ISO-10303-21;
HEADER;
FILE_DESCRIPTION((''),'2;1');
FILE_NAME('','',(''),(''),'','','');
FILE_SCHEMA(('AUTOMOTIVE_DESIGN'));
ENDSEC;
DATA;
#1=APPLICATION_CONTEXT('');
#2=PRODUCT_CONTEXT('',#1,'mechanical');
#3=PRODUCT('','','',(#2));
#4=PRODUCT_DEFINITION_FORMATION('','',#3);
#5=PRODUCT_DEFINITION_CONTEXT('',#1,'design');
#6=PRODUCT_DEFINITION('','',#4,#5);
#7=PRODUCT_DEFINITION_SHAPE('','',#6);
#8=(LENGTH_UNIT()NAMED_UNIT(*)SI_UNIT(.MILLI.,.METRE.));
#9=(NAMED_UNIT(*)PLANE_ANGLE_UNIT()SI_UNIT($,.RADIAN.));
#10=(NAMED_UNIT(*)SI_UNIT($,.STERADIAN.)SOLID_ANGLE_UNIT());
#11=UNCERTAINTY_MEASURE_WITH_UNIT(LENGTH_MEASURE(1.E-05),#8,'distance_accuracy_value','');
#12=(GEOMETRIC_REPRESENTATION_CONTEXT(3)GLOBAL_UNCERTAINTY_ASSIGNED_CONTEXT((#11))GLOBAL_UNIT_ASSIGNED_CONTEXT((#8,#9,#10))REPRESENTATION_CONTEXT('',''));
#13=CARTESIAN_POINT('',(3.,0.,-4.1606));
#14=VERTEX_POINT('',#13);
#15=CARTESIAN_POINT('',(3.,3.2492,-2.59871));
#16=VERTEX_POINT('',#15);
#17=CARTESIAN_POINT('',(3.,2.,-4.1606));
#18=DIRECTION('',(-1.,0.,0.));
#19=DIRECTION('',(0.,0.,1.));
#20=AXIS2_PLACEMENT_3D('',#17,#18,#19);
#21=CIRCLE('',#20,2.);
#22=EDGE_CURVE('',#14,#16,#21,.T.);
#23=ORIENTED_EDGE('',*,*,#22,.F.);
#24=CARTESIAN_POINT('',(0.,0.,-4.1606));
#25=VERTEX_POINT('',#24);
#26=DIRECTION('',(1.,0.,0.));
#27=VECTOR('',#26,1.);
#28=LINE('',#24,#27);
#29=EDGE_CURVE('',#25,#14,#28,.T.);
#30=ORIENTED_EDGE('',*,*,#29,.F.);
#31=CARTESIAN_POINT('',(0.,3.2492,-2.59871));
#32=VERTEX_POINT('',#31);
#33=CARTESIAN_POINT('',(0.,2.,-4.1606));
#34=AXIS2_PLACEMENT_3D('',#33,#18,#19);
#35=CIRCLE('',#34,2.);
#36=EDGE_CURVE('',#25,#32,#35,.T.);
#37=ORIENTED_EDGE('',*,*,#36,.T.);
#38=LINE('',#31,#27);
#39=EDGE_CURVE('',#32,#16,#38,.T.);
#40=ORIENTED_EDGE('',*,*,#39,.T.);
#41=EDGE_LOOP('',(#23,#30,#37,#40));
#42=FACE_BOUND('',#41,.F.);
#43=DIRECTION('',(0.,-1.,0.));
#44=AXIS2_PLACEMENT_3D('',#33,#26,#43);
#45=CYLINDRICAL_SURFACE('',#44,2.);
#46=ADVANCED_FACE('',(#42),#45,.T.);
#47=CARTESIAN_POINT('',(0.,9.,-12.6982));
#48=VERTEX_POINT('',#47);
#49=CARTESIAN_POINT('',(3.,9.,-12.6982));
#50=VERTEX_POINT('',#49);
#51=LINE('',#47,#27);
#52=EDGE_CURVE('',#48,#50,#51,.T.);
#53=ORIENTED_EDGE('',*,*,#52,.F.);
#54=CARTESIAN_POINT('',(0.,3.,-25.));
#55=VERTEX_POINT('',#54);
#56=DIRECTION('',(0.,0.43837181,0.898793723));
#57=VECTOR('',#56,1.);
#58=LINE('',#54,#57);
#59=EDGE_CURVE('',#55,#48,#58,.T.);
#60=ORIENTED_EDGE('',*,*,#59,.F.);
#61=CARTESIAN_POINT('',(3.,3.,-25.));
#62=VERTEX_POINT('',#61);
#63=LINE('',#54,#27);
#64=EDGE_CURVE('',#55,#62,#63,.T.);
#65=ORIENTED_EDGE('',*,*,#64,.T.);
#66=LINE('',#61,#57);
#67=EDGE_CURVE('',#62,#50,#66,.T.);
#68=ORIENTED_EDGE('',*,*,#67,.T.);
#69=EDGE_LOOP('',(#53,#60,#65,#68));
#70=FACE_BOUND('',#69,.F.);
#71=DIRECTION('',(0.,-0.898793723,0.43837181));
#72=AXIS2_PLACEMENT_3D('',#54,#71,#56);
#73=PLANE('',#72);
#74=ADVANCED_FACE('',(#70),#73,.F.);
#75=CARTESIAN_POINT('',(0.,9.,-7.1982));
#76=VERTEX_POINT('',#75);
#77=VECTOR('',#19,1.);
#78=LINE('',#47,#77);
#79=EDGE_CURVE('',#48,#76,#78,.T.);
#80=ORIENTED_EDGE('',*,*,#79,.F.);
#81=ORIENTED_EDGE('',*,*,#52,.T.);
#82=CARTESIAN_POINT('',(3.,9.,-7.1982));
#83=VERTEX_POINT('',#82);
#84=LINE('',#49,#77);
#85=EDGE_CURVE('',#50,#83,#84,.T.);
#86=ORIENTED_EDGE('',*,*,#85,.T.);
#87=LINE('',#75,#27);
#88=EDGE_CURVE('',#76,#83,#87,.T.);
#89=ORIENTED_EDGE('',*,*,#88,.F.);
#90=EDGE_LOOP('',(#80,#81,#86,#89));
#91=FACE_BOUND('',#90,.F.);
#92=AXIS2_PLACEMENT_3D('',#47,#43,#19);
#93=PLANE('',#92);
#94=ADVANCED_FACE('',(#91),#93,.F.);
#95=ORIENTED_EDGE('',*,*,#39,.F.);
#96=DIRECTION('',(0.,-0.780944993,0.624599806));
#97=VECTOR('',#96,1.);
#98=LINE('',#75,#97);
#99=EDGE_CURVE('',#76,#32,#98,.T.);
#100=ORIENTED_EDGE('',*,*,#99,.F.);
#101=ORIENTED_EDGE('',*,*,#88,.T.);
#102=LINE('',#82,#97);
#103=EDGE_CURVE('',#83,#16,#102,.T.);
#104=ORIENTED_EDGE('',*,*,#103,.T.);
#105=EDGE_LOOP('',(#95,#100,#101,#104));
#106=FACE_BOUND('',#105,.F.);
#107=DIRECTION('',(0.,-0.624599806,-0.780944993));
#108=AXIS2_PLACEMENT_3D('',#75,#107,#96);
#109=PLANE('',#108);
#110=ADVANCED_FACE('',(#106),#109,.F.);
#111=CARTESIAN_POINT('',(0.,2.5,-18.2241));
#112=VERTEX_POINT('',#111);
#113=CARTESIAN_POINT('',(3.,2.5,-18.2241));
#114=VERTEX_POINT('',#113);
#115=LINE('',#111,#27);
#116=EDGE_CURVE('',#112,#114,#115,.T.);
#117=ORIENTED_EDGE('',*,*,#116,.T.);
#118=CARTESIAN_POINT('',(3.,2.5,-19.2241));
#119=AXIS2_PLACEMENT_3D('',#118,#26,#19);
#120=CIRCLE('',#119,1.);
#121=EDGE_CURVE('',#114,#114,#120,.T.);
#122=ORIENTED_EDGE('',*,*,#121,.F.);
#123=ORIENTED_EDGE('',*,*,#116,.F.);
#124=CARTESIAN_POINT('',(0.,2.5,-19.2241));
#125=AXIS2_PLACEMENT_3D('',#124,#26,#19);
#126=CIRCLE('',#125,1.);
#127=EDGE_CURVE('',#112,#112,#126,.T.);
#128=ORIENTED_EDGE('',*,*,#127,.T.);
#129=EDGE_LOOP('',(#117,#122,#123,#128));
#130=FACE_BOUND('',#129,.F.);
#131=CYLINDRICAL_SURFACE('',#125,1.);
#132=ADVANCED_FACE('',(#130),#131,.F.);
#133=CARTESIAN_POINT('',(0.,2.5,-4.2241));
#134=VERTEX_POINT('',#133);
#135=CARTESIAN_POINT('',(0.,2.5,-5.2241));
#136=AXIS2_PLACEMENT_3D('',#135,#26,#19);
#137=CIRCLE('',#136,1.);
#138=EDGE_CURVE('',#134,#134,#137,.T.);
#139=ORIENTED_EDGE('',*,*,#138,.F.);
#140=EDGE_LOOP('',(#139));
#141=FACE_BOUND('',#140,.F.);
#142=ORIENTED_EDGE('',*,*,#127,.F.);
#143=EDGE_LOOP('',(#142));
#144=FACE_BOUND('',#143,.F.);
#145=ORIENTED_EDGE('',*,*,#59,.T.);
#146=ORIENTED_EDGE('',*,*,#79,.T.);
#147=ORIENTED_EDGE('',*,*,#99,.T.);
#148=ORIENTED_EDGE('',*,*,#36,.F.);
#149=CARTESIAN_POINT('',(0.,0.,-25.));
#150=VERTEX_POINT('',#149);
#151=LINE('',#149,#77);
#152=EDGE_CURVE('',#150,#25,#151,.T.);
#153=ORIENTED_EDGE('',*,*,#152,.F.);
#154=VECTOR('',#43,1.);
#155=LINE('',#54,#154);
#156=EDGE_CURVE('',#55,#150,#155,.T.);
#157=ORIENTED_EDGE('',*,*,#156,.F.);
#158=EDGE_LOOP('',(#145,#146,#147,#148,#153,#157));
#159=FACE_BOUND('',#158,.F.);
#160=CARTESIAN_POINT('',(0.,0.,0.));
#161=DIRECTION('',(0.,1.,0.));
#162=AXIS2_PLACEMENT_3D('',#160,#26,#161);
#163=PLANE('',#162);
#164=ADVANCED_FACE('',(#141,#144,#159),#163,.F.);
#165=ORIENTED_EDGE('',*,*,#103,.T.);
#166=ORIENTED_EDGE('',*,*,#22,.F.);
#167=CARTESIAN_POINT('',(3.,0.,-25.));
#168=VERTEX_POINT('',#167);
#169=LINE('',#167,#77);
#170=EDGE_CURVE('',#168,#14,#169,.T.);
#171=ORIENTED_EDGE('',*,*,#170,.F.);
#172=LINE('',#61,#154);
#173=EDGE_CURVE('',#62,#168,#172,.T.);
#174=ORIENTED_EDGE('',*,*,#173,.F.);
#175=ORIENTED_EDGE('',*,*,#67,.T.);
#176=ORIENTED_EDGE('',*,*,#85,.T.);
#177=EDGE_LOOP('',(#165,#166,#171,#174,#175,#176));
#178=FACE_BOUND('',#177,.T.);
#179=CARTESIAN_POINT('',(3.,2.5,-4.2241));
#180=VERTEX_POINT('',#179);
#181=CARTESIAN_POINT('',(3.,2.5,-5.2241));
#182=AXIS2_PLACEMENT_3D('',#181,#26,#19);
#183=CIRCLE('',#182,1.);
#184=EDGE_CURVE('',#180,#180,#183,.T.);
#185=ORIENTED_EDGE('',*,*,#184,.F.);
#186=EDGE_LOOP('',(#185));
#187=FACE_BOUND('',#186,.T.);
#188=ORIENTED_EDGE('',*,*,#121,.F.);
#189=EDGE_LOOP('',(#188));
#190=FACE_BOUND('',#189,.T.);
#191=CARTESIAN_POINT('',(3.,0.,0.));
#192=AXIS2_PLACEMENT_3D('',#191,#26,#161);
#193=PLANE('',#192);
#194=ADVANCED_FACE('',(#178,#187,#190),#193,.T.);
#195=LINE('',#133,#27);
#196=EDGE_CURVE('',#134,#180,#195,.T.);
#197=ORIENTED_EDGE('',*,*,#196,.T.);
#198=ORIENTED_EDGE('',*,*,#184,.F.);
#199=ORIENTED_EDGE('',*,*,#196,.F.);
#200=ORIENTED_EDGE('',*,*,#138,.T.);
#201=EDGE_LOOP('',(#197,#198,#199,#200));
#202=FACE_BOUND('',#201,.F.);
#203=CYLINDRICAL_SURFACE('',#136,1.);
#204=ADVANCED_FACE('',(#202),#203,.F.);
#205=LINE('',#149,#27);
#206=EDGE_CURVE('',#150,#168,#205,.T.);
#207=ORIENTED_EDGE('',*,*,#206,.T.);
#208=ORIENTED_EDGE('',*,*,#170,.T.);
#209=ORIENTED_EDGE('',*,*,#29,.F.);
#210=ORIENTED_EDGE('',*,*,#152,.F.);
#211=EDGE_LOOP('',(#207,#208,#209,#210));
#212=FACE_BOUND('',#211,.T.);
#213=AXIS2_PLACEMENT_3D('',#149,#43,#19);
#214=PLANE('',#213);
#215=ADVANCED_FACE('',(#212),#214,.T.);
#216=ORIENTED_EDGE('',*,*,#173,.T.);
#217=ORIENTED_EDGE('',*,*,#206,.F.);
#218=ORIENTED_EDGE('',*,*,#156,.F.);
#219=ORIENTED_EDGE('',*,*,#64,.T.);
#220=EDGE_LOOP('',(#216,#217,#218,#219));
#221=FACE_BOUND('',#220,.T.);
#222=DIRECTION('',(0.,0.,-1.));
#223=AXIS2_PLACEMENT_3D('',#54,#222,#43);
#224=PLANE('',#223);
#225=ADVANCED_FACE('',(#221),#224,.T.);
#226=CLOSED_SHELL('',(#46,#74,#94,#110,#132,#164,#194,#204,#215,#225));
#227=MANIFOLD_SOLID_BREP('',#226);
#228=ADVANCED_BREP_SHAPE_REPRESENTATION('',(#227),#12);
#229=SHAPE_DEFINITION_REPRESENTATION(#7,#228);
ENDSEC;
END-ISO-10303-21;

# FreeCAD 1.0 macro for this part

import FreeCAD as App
import Part
import Sketcher
Q = App.Units.Quantity


def edges_at(feature, points):
    """Names of the edges that pass closest to the given points."""
    edges = feature.Shape.Edges
    near = lambda p: min(range(len(edges)), key=lambda i: edges[i].distToShape(Part.Vertex(*p))[0])
    return sorted({f"Edge{near(p) + 1}" for p in points})


def add_polygon(sketch, points):
    """Adds a closed chain of lines whose ends are joined by coincident constraints."""
    first, n = sketch.GeometryCount, len(points)
    for a, b in zip(points, points[1:] + points[:1]):
        sketch.addGeometry(Part.LineSegment(App.Vector(*a, 0), App.Vector(*b, 0)), False)
    for i in range(n):
        sketch.addConstraint(Sketcher.Constraint("Coincident", first + i, 2, first + (i + 1) % n, 1))

doc = App.newDocument("Part")
body = doc.addObject("PartDesign::Body", "Body")

# Sketch on YZ plane
sketch1 = body.newObject("Sketcher::SketchObject", "Sketch")
sketch1.AttachmentSupport = (doc.getObject("YZ_Plane"), [""])
sketch1.MapMode = "FlatFace"
add_polygon(sketch1, [(0, -25), (3, -25), (9, -12.6982), (9, -7.1982), (0, 0)])  # lines 0-4
sketch1.addConstraint(Sketcher.Constraint("Horizontal", 0))
sketch1.addConstraint(Sketcher.Constraint("Vertical", 2))
sketch1.addConstraint(Sketcher.Constraint("Vertical", 4))
sketch1.addConstraint(Sketcher.Constraint("Coincident", 3, 2, -1, 1))
sketch1.addConstraint(Sketcher.Constraint("DistanceX", 0, 1, 0, 2, Q("3 mm")))
sketch1.addConstraint(Sketcher.Constraint("DistanceY", 4, 2, 4, 1, Q("25 mm")))
sketch1.addConstraint(Sketcher.Constraint("DistanceY", 2, 1, 2, 2, Q("5.5 mm")))
sketch1.addConstraint(Sketcher.Constraint("DistanceX", -1, 1, 1, 2, Q("9 mm")))
sketch1.addConstraint(Sketcher.Constraint("Angle", 1, Q("64 deg")))
pad1 = body.newObject("PartDesign::Pad", "Pad")
pad1.Profile = sketch1
pad1.Length = 3
doc.recompute()

fillet = body.newObject("PartDesign::Fillet", "Fillet")
fillet.Base = (pad1, edges_at(pad1, [(1.5, 0, 0)]))
fillet.Radius = 2

# Sketch on YZ plane
sketch2 = body.newObject("Sketcher::SketchObject", "Sketch001")
sketch2.AttachmentSupport = (doc.getObject("YZ_Plane"), [""])
sketch2.MapMode = "FlatFace"
sketch2.addGeometry(Part.Circle(App.Vector(2.5, -19.2241, 0), App.Vector(0, 0, 1), 1), False)
sketch2.addGeometry(Part.Circle(App.Vector(2.5, -5.2241, 0), App.Vector(0, 0, 1), 1), False)
sketch2.addConstraint(Sketcher.Constraint("Equal", 0, 1))
sketch2.addConstraint(Sketcher.Constraint("Vertical", 0, 3, 1, 3))
sketch2.addConstraint(Sketcher.Constraint("Diameter", 0, Q("2 mm")))
sketch2.addConstraint(Sketcher.Constraint("DistanceY", 0, 3, 1, 3, Q("14 mm")))
sketch2.addConstraint(Sketcher.Constraint("DistanceX", -1, 1, 0, 3, Q("2.5 mm")))
sketch2.addConstraint(Sketcher.Constraint("DistanceY", 0, 3, -1, 1, Q("19.224 mm")))
doc.recompute()
hole = body.newObject("PartDesign::Hole", "Hole")
hole.Profile = sketch2
hole.ThreadType = "None"
hole.Diameter = 2
hole.DepthType = "ThroughAll"
hole.Reversed = True

doc.recompute()
